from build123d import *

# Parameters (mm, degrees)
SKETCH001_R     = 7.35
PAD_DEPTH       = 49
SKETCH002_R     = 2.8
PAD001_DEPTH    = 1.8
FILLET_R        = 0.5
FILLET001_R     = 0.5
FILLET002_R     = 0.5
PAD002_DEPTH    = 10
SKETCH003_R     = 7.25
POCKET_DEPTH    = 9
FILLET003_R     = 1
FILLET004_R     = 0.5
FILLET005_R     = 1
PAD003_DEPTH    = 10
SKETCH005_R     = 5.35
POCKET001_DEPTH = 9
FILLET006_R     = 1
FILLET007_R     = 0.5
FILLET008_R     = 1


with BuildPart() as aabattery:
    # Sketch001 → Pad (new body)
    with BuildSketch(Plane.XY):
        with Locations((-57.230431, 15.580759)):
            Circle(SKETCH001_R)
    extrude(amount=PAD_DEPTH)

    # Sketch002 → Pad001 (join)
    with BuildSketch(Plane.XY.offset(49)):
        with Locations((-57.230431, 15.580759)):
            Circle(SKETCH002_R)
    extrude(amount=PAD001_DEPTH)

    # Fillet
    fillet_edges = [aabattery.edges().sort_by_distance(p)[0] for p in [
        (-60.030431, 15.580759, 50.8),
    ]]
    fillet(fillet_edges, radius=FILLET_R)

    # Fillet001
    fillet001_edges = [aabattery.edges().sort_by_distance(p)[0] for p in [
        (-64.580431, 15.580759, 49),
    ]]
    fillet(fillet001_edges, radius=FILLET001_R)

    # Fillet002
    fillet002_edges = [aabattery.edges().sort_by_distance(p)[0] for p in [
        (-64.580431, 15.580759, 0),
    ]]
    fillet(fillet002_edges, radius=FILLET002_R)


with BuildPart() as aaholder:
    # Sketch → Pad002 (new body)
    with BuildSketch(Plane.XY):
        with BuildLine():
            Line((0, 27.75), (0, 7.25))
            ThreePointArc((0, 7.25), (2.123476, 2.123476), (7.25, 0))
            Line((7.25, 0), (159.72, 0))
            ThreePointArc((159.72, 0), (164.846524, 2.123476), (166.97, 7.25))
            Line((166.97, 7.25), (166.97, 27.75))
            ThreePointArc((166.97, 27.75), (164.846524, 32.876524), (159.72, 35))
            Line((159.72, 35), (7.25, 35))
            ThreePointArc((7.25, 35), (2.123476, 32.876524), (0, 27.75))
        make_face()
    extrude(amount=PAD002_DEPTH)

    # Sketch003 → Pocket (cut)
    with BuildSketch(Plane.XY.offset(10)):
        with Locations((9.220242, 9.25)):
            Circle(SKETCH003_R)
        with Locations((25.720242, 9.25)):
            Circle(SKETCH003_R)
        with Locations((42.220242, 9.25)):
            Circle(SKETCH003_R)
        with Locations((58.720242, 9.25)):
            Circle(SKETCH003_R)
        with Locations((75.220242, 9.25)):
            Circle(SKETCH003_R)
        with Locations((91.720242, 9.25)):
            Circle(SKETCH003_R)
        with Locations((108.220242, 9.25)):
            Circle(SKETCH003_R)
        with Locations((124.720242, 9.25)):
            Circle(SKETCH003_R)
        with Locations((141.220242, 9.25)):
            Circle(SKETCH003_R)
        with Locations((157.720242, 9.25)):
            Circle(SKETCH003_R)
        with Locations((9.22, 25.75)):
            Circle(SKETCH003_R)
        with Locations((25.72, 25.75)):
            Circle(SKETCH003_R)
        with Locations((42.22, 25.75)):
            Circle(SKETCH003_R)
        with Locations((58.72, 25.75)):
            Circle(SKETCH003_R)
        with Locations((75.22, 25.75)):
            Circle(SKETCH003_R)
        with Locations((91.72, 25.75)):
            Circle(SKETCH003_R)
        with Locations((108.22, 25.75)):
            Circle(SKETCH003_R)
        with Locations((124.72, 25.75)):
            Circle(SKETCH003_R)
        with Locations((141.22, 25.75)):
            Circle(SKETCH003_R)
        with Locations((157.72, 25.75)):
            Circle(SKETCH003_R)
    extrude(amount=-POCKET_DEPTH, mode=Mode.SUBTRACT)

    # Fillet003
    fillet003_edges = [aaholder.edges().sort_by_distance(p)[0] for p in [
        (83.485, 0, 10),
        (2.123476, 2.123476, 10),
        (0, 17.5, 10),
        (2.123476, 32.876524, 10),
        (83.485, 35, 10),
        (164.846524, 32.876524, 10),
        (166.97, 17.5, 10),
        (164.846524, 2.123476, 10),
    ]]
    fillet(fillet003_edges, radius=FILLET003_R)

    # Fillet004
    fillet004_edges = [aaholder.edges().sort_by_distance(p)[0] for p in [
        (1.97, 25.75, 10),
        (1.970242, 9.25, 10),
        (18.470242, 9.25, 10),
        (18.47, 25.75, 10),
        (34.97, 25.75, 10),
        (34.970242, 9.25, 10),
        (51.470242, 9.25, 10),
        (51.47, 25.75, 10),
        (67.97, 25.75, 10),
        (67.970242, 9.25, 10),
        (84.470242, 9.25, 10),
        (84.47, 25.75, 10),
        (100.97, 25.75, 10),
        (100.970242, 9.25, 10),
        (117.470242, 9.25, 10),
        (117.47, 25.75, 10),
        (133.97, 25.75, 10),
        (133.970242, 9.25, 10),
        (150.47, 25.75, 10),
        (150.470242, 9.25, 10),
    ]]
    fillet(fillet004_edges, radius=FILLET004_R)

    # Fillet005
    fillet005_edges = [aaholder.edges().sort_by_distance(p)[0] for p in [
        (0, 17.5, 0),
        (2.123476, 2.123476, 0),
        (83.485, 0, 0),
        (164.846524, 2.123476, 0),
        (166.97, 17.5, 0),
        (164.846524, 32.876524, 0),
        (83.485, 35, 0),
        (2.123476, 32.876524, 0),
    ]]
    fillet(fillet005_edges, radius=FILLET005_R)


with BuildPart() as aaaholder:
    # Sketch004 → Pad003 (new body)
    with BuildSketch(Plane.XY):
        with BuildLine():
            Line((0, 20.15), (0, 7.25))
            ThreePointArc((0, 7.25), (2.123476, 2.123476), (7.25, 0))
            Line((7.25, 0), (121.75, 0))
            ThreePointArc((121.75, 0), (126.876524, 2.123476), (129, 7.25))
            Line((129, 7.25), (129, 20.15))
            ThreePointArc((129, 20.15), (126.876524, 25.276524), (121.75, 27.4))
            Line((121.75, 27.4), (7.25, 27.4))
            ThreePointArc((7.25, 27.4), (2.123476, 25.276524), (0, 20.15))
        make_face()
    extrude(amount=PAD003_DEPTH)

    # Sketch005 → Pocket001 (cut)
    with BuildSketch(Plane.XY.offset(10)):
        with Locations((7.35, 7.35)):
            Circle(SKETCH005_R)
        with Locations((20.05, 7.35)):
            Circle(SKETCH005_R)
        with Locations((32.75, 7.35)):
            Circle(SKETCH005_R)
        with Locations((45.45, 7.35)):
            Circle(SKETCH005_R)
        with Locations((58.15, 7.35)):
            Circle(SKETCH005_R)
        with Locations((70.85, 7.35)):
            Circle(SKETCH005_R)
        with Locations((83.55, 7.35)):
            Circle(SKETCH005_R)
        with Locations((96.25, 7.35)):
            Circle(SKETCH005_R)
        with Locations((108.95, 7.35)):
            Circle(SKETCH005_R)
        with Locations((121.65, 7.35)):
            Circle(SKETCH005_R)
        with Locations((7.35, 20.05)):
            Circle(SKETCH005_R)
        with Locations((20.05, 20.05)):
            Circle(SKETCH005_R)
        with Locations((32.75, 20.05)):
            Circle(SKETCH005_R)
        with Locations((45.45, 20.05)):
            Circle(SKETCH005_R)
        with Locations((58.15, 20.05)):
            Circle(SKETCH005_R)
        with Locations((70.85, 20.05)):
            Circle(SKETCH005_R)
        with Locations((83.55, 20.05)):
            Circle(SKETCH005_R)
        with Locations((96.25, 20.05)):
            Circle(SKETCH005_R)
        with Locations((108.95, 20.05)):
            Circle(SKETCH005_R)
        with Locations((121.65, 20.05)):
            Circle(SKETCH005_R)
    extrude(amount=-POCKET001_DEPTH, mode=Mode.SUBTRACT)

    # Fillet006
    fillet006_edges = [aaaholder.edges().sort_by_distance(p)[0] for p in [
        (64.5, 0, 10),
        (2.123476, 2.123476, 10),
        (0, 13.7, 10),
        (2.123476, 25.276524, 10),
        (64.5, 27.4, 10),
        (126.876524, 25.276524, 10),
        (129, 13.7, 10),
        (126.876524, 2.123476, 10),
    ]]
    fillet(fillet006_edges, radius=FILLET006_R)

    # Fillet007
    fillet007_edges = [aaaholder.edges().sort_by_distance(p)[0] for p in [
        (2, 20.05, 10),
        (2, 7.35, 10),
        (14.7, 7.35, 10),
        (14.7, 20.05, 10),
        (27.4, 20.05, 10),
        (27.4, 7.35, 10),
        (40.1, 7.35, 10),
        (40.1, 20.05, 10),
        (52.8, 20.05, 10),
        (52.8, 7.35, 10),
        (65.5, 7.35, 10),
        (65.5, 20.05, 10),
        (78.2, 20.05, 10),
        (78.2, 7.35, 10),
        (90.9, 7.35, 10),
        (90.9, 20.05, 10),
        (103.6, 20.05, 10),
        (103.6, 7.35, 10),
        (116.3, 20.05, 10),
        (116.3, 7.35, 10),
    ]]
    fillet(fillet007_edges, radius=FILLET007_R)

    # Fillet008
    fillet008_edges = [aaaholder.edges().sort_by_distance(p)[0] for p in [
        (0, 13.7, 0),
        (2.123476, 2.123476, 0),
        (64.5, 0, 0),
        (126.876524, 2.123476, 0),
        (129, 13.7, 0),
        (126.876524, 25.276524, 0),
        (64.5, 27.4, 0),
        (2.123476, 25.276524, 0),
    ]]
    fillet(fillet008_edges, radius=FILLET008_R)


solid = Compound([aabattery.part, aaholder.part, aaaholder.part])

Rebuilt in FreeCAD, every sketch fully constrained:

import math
import FreeCAD as App
import Part
import Sketcher


def edges_at(feature, points):
    """Names of the edges that pass closest to the given points."""
    edges = feature.Shape.Edges
    near = lambda p: min(range(len(edges)), key=lambda i: edges[i].distToShape(Part.Vertex(*p))[0])
    return sorted({f"Edge{near(p) + 1}" for p in points})

doc = App.newDocument("Part")
body = doc.addObject("PartDesign::Body", "Body")

# Sketch on XY plane
sketch1 = body.newObject("Sketcher::SketchObject", "Sketch")
sketch1.AttachmentSupport = (doc.getObject("XY_Plane"), [""])
sketch1.MapMode = "FlatFace"
sketch1.addGeometry(Part.Circle(App.Vector(-57.230431, 15.580759, 0), App.Vector(0, 0, 1), 7.35), False)
sketch1.addConstraint([
    Sketcher.Constraint("Diameter", 0, 14.7),
    Sketcher.Constraint("DistanceX", 0, 3, -1, 1, 57.230431),
    Sketcher.Constraint("DistanceY", -1, 1, 0, 3, 15.580759),
])
pad1 = body.newObject("PartDesign::Pad", "Pad")
pad1.Profile = sketch1
pad1.Length = 49

# Sketch on XY plane
sketch2 = body.newObject("Sketcher::SketchObject", "Sketch001")
sketch2.AttachmentSupport = (doc.getObject("XY_Plane"), [""])
sketch2.MapMode = "FlatFace"
sketch2.AttachmentOffset = App.Placement(App.Vector(0, 0, 49), App.Rotation())
sketch2.addGeometry(Part.Circle(App.Vector(-57.230431, 15.580759, 0), App.Vector(0, 0, 1), 2.8), False)
sketch2.addConstraint([
    Sketcher.Constraint("Diameter", 0, 5.6),
    Sketcher.Constraint("DistanceX", 0, 3, -1, 1, 57.230431),
    Sketcher.Constraint("DistanceY", -1, 1, 0, 3, 15.580759),
])
pad2 = body.newObject("PartDesign::Pad", "Pad001")
pad2.Profile = sketch2
pad2.Length = 1.8
doc.recompute()

fillet = body.newObject("PartDesign::Fillet", "Fillet")
fillet.Base = (pad2, edges_at(pad2, [(-60.03, 15.581, 50.8)]))
fillet.Radius = 0.5
doc.recompute()

fillet2 = body.newObject("PartDesign::Fillet", "Fillet001")
fillet2.Base = (fillet, edges_at(fillet, [(-64.58, 15.581, 49)]))
fillet2.Radius = 0.5
doc.recompute()

fillet3 = body.newObject("PartDesign::Fillet", "Fillet002")
fillet3.Base = (fillet2, edges_at(fillet2, [(-64.58, 15.581, 0)]))
fillet3.Radius = 0.5
body2 = doc.addObject("PartDesign::Body", "Body001")

# Sketch on XY plane
sketch3 = body2.newObject("Sketcher::SketchObject", "Sketch002")
sketch3.AttachmentSupport = (doc.getObject("XY_Plane001"), [""])
sketch3.MapMode = "FlatFace"
sketch3.addGeometry([
    Part.LineSegment(App.Vector(0, 27.75, 0), App.Vector(0, 7.25, 0)),  # 0
    Part.ArcOfCircle(Part.Circle(App.Vector(7.250001, 7.250001, 0), App.Vector(0, 0, 1), 7.250001), math.radians(-179.999996), math.radians(-90.000004)),  # 1
    Part.LineSegment(App.Vector(7.25, 0, 0), App.Vector(159.72, 0, 0)),  # 2
    Part.ArcOfCircle(Part.Circle(App.Vector(159.719999, 7.250001, 0), App.Vector(0, 0, 1), 7.250001), math.radians(-89.999996), math.radians(-0.000004)),  # 3
    Part.LineSegment(App.Vector(166.97, 7.25, 0), App.Vector(166.97, 27.75, 0)),  # 4
    Part.ArcOfCircle(Part.Circle(App.Vector(159.719999, 27.749999, 0), App.Vector(0, 0, 1), 7.250001), math.radians(0.000004), math.radians(89.999996)),  # 5
    Part.LineSegment(App.Vector(159.72, 35, 0), App.Vector(7.25, 35, 0)),  # 6
    Part.ArcOfCircle(Part.Circle(App.Vector(7.250001, 27.749999, 0), App.Vector(0, 0, 1), 7.250001), math.radians(90.000004), math.radians(179.999996)),  # 7
], False)
sketch3.addConstraint([
    Sketcher.Constraint("Tangent", 0, 2, 1, 1),
    Sketcher.Constraint("Tangent", 1, 2, 2, 1),
    Sketcher.Constraint("Tangent", 2, 2, 3, 1),
    Sketcher.Constraint("Tangent", 3, 2, 4, 1),
    Sketcher.Constraint("Tangent", 4, 2, 5, 1),
    Sketcher.Constraint("Tangent", 5, 2, 6, 1),
    Sketcher.Constraint("Tangent", 6, 2, 7, 1),
    Sketcher.Constraint("Tangent", 7, 2, 0, 1),
    Sketcher.Constraint("Vertical", 0),
    Sketcher.Constraint("Horizontal", 2),
    Sketcher.Constraint("Vertical", 4),
    Sketcher.Constraint("Horizontal", 6),
    Sketcher.Constraint("Equal", 1, 3),
    Sketcher.Constraint("Equal", 3, 5),
    Sketcher.Constraint("Equal", 5, 7),
    Sketcher.Constraint("PointOnObject", 0, 2, -2),
    Sketcher.Constraint("PointOnObject", 1, 2, -1),
    Sketcher.Constraint("Radius", 1, 7.250001),
    Sketcher.Constraint("DistanceY", 0, 2, 0, 1, 20.5),
    Sketcher.Constraint("DistanceX", 2, 1, 2, 2, 152.47),
])
pad3 = body2.newObject("PartDesign::Pad", "Pad002")
pad3.Profile = sketch3
pad3.Length = 10

# Sketch on XY plane
sketch4 = body2.newObject("Sketcher::SketchObject", "Sketch003")
sketch4.AttachmentSupport = (doc.getObject("XY_Plane001"), [""])
sketch4.MapMode = "FlatFace"
sketch4.AttachmentOffset = App.Placement(App.Vector(0, 0, 10), App.Rotation())
sketch4.addGeometry([
    Part.Circle(App.Vector(9.220242, 9.25, 0), App.Vector(0, 0, 1), 7.25),  # 0
    Part.Circle(App.Vector(25.720242, 9.25, 0), App.Vector(0, 0, 1), 7.25),  # 1
    Part.Circle(App.Vector(42.220242, 9.25, 0), App.Vector(0, 0, 1), 7.25),  # 2
    Part.Circle(App.Vector(58.720242, 9.25, 0), App.Vector(0, 0, 1), 7.25),  # 3
    Part.Circle(App.Vector(75.220242, 9.25, 0), App.Vector(0, 0, 1), 7.25),  # 4
    Part.Circle(App.Vector(91.720242, 9.25, 0), App.Vector(0, 0, 1), 7.25),  # 5
    Part.Circle(App.Vector(108.220242, 9.25, 0), App.Vector(0, 0, 1), 7.25),  # 6
    Part.Circle(App.Vector(124.720242, 9.25, 0), App.Vector(0, 0, 1), 7.25),  # 7
    Part.Circle(App.Vector(141.220242, 9.25, 0), App.Vector(0, 0, 1), 7.25),  # 8
    Part.Circle(App.Vector(157.720242, 9.25, 0), App.Vector(0, 0, 1), 7.25),  # 9
    Part.Circle(App.Vector(9.22, 25.75, 0), App.Vector(0, 0, 1), 7.25),  # 10
    Part.Circle(App.Vector(25.72, 25.75, 0), App.Vector(0, 0, 1), 7.25),  # 11
    Part.Circle(App.Vector(42.22, 25.75, 0), App.Vector(0, 0, 1), 7.25),  # 12
    Part.Circle(App.Vector(58.72, 25.75, 0), App.Vector(0, 0, 1), 7.25),  # 13
    Part.Circle(App.Vector(75.22, 25.75, 0), App.Vector(0, 0, 1), 7.25),  # 14
    Part.Circle(App.Vector(91.72, 25.75, 0), App.Vector(0, 0, 1), 7.25),  # 15
    Part.Circle(App.Vector(108.22, 25.75, 0), App.Vector(0, 0, 1), 7.25),  # 16
    Part.Circle(App.Vector(124.72, 25.75, 0), App.Vector(0, 0, 1), 7.25),  # 17
    Part.Circle(App.Vector(141.22, 25.75, 0), App.Vector(0, 0, 1), 7.25),  # 18
    Part.Circle(App.Vector(157.72, 25.75, 0), App.Vector(0, 0, 1), 7.25),  # 19
], False)
sketch4.addConstraint([
    Sketcher.Constraint("Equal", 0, 1),
    Sketcher.Constraint("Equal", 1, 2),
    Sketcher.Constraint("Equal", 2, 3),
    Sketcher.Constraint("Equal", 3, 4),
    Sketcher.Constraint("Equal", 4, 5),
    Sketcher.Constraint("Equal", 5, 6),
    Sketcher.Constraint("Equal", 6, 7),
    Sketcher.Constraint("Equal", 7, 8),
    Sketcher.Constraint("Equal", 8, 9),
    Sketcher.Constraint("Equal", 9, 10),
    Sketcher.Constraint("Equal", 10, 11),
    Sketcher.Constraint("Equal", 11, 12),
    Sketcher.Constraint("Equal", 12, 13),
    Sketcher.Constraint("Equal", 13, 14),
    Sketcher.Constraint("Equal", 14, 15),
    Sketcher.Constraint("Equal", 15, 16),
    Sketcher.Constraint("Equal", 16, 17),
    Sketcher.Constraint("Equal", 17, 18),
    Sketcher.Constraint("Equal", 18, 19),
    Sketcher.Constraint("Horizontal", 0, 3, 1, 3),
    Sketcher.Constraint("Horizontal", 1, 3, 2, 3),
    Sketcher.Constraint("Horizontal", 2, 3, 3, 3),
    Sketcher.Constraint("Horizontal", 3, 3, 4, 3),
    Sketcher.Constraint("Horizontal", 4, 3, 5, 3),
    Sketcher.Constraint("Horizontal", 5, 3, 6, 3),
    Sketcher.Constraint("Horizontal", 6, 3, 7, 3),
    Sketcher.Constraint("Horizontal", 7, 3, 8, 3),
    Sketcher.Constraint("Horizontal", 8, 3, 9, 3),
    Sketcher.Constraint("Horizontal", 10, 3, 11, 3),
    Sketcher.Constraint("Horizontal", 11, 3, 12, 3),
    Sketcher.Constraint("Horizontal", 12, 3, 13, 3),
    Sketcher.Constraint("Horizontal", 13, 3, 14, 3),
    Sketcher.Constraint("Horizontal", 14, 3, 15, 3),
    Sketcher.Constraint("Horizontal", 15, 3, 16, 3),
    Sketcher.Constraint("Horizontal", 16, 3, 17, 3),
    Sketcher.Constraint("Horizontal", 17, 3, 18, 3),
    Sketcher.Constraint("Horizontal", 18, 3, 19, 3),
    Sketcher.Constraint("Diameter", 0, 14.5),
    Sketcher.Constraint("DistanceX", 0, 3, 2, 3, 33.0),
    Sketcher.Constraint("DistanceX", 1, 3, 3, 3, 33.0),
    Sketcher.Constraint("DistanceX", 2, 3, 4, 3, 33.0),
    Sketcher.Constraint("DistanceX", 3, 3, 5, 3, 33.0),
    Sketcher.Constraint("DistanceX", 4, 3, 6, 3, 33.0),
    Sketcher.Constraint("DistanceX", 5, 3, 7, 3, 33.0),
    Sketcher.Constraint("DistanceX", 6, 3, 8, 3, 33.0),
    Sketcher.Constraint("DistanceX", 7, 3, 9, 3, 33.0),
    Sketcher.Constraint("DistanceX", 10, 3, 12, 3, 33.0),
    Sketcher.Constraint("DistanceX", 11, 3, 13, 3, 33.0),
    Sketcher.Constraint("DistanceX", 12, 3, 14, 3, 33.0),
    Sketcher.Constraint("DistanceX", 13, 3, 15, 3, 33.0),
    Sketcher.Constraint("DistanceX", 14, 3, 16, 3, 33.0),
    Sketcher.Constraint("DistanceX", 15, 3, 17, 3, 33.0),
    Sketcher.Constraint("DistanceX", 16, 3, 18, 3, 33.0),
    Sketcher.Constraint("DistanceX", 17, 3, 19, 3, 33.0),
    Sketcher.Constraint("DistanceX", 0, 3, 1, 3, 16.5),
    Sketcher.Constraint("DistanceY", 0, 3, 10, 3, 16.5),
    Sketcher.Constraint("DistanceX", 10, 3, 11, 3, 16.5),
    Sketcher.Constraint("DistanceY", -1, 1, 0, 3, 9.25),
    Sketcher.Constraint("DistanceX", -1, 1, 10, 3, 9.22),
    Sketcher.Constraint("DistanceX", -1, 1, 1, 3, 25.720242),
])
pocket1 = body2.newObject("PartDesign::Pocket", "Pocket")
pocket1.Profile = sketch4
pocket1.Length = 9
doc.recompute()

fillet4 = body2.newObject("PartDesign::Fillet", "Fillet003")
fillet4.Base = (pocket1, edges_at(pocket1, [
    (83.485, 0, 10),
    (2.123, 2.123, 10),
    (0, 17.5, 10),
    (2.123, 32.877, 10),
    (83.485, 35, 10),
    (164.847, 32.877, 10),
    (166.97, 17.5, 10),
    (164.847, 2.123, 10),
]))
fillet4.Radius = 1
doc.recompute()

fillet5 = body2.newObject("PartDesign::Fillet", "Fillet004")
fillet5.Base = (fillet4, edges_at(fillet4, [
    (1.97, 25.75, 10),
    (1.97, 9.25, 10),
    (18.47, 9.25, 10),
    (18.47, 25.75, 10),
    (34.97, 25.75, 10),
    (34.97, 9.25, 10),
    (51.47, 9.25, 10),
    (51.47, 25.75, 10),
    (67.97, 25.75, 10),
    (67.97, 9.25, 10),
    (84.47, 9.25, 10),
    (84.47, 25.75, 10),
    (100.97, 25.75, 10),
    (100.97, 9.25, 10),
    (117.47, 9.25, 10),
    (117.47, 25.75, 10),
    (133.97, 25.75, 10),
    (133.97, 9.25, 10),
    (150.47, 25.75, 10),
    (150.47, 9.25, 10),
]))
fillet5.Radius = 0.5
doc.recompute()

fillet6 = body2.newObject("PartDesign::Fillet", "Fillet005")
fillet6.Base = (fillet5, edges_at(fillet5, [
    (0, 17.5, 0),
    (2.123, 2.123, 0),
    (83.485, 0, 0),
    (164.847, 2.123, 0),
    (166.97, 17.5, 0),
    (164.847, 32.877, 0),
    (83.485, 35, 0),
    (2.123, 32.877, 0),
]))
fillet6.Radius = 1
body3 = doc.addObject("PartDesign::Body", "Body002")

# Sketch on XY plane
sketch5 = body3.newObject("Sketcher::SketchObject", "Sketch004")
sketch5.AttachmentSupport = (doc.getObject("XY_Plane002"), [""])
sketch5.MapMode = "FlatFace"
sketch5.addGeometry([
    Part.LineSegment(App.Vector(0, 20.15, 0), App.Vector(0, 7.25, 0)),  # 0
    Part.ArcOfCircle(Part.Circle(App.Vector(7.250001, 7.250001, 0), App.Vector(0, 0, 1), 7.250001), math.radians(-179.999996), math.radians(-90.000004)),  # 1
    Part.LineSegment(App.Vector(7.25, 0, 0), App.Vector(121.75, 0, 0)),  # 2
    Part.ArcOfCircle(Part.Circle(App.Vector(121.749999, 7.250001, 0), App.Vector(0, 0, 1), 7.250001), math.radians(-89.999996), math.radians(-0.000004)),  # 3
    Part.LineSegment(App.Vector(129, 7.25, 0), App.Vector(129, 20.15, 0)),  # 4
    Part.ArcOfCircle(Part.Circle(App.Vector(121.749999, 20.149999, 0), App.Vector(0, 0, 1), 7.250001), math.radians(0.000004), math.radians(89.999996)),  # 5
    Part.LineSegment(App.Vector(121.75, 27.4, 0), App.Vector(7.25, 27.4, 0)),  # 6
    Part.ArcOfCircle(Part.Circle(App.Vector(7.250001, 20.149999, 0), App.Vector(0, 0, 1), 7.250001), math.radians(90.000004), math.radians(179.999996)),  # 7
], False)
sketch5.addConstraint([
    Sketcher.Constraint("Tangent", 0, 2, 1, 1),
    Sketcher.Constraint("Tangent", 1, 2, 2, 1),
    Sketcher.Constraint("Tangent", 2, 2, 3, 1),
    Sketcher.Constraint("Tangent", 3, 2, 4, 1),
    Sketcher.Constraint("Tangent", 4, 2, 5, 1),
    Sketcher.Constraint("Tangent", 5, 2, 6, 1),
    Sketcher.Constraint("Tangent", 6, 2, 7, 1),
    Sketcher.Constraint("Tangent", 7, 2, 0, 1),
    Sketcher.Constraint("Vertical", 0),
    Sketcher.Constraint("Horizontal", 2),
    Sketcher.Constraint("Vertical", 4),
    Sketcher.Constraint("Horizontal", 6),
    Sketcher.Constraint("Equal", 1, 3),
    Sketcher.Constraint("Equal", 3, 5),
    Sketcher.Constraint("Equal", 5, 7),
    Sketcher.Constraint("PointOnObject", 0, 2, -2),
    Sketcher.Constraint("PointOnObject", 1, 2, -1),
    Sketcher.Constraint("Radius", 1, 7.250001),
    Sketcher.Constraint("DistanceX", 2, 1, 2, 2, 114.5),
    Sketcher.Constraint("DistanceY", 0, 2, 0, 1, 12.9),
])
pad4 = body3.newObject("PartDesign::Pad", "Pad003")
pad4.Profile = sketch5
pad4.Length = 10

# Sketch on XY plane
sketch6 = body3.newObject("Sketcher::SketchObject", "Sketch005")
sketch6.AttachmentSupport = (doc.getObject("XY_Plane002"), [""])
sketch6.MapMode = "FlatFace"
sketch6.AttachmentOffset = App.Placement(App.Vector(0, 0, 10), App.Rotation())
sketch6.addGeometry([
    Part.Circle(App.Vector(7.35, 7.35, 0), App.Vector(0, 0, 1), 5.35),  # 0
    Part.Circle(App.Vector(20.05, 7.35, 0), App.Vector(0, 0, 1), 5.35),  # 1
    Part.Circle(App.Vector(32.75, 7.35, 0), App.Vector(0, 0, 1), 5.35),  # 2
    Part.Circle(App.Vector(45.45, 7.35, 0), App.Vector(0, 0, 1), 5.35),  # 3
    Part.Circle(App.Vector(58.15, 7.35, 0), App.Vector(0, 0, 1), 5.35),  # 4
    Part.Circle(App.Vector(70.85, 7.35, 0), App.Vector(0, 0, 1), 5.35),  # 5
    Part.Circle(App.Vector(83.55, 7.35, 0), App.Vector(0, 0, 1), 5.35),  # 6
    Part.Circle(App.Vector(96.25, 7.35, 0), App.Vector(0, 0, 1), 5.35),  # 7
    Part.Circle(App.Vector(108.95, 7.35, 0), App.Vector(0, 0, 1), 5.35),  # 8
    Part.Circle(App.Vector(121.65, 7.35, 0), App.Vector(0, 0, 1), 5.35),  # 9
    Part.Circle(App.Vector(7.35, 20.05, 0), App.Vector(0, 0, 1), 5.35),  # 10
    Part.Circle(App.Vector(20.05, 20.05, 0), App.Vector(0, 0, 1), 5.35),  # 11
    Part.Circle(App.Vector(32.75, 20.05, 0), App.Vector(0, 0, 1), 5.35),  # 12
    Part.Circle(App.Vector(45.45, 20.05, 0), App.Vector(0, 0, 1), 5.35),  # 13
    Part.Circle(App.Vector(58.15, 20.05, 0), App.Vector(0, 0, 1), 5.35),  # 14
    Part.Circle(App.Vector(70.85, 20.05, 0), App.Vector(0, 0, 1), 5.35),  # 15
    Part.Circle(App.Vector(83.55, 20.05, 0), App.Vector(0, 0, 1), 5.35),  # 16
    Part.Circle(App.Vector(96.25, 20.05, 0), App.Vector(0, 0, 1), 5.35),  # 17
    Part.Circle(App.Vector(108.95, 20.05, 0), App.Vector(0, 0, 1), 5.35),  # 18
    Part.Circle(App.Vector(121.65, 20.05, 0), App.Vector(0, 0, 1), 5.35),  # 19
], False)
sketch6.addConstraint([
    Sketcher.Constraint("Equal", 0, 1),
    Sketcher.Constraint("Equal", 1, 2),
    Sketcher.Constraint("Equal", 2, 3),
    Sketcher.Constraint("Equal", 3, 4),
    Sketcher.Constraint("Equal", 4, 5),
    Sketcher.Constraint("Equal", 5, 6),
    Sketcher.Constraint("Equal", 6, 7),
    Sketcher.Constraint("Equal", 7, 8),
    Sketcher.Constraint("Equal", 8, 9),
    Sketcher.Constraint("Equal", 9, 10),
    Sketcher.Constraint("Equal", 10, 11),
    Sketcher.Constraint("Equal", 11, 12),
    Sketcher.Constraint("Equal", 12, 13),
    Sketcher.Constraint("Equal", 13, 14),
    Sketcher.Constraint("Equal", 14, 15),
    Sketcher.Constraint("Equal", 15, 16),
    Sketcher.Constraint("Equal", 16, 17),
    Sketcher.Constraint("Equal", 17, 18),
    Sketcher.Constraint("Equal", 18, 19),
    Sketcher.Constraint("Horizontal", 0, 3, 1, 3),
    Sketcher.Constraint("Horizontal", 1, 3, 2, 3),
    Sketcher.Constraint("Horizontal", 2, 3, 3, 3),
    Sketcher.Constraint("Horizontal", 3, 3, 4, 3),
    Sketcher.Constraint("Horizontal", 4, 3, 5, 3),
    Sketcher.Constraint("Horizontal", 5, 3, 6, 3),
    Sketcher.Constraint("Horizontal", 6, 3, 7, 3),
    Sketcher.Constraint("Horizontal", 7, 3, 8, 3),
    Sketcher.Constraint("Horizontal", 8, 3, 9, 3),
    Sketcher.Constraint("Horizontal", 10, 3, 11, 3),
    Sketcher.Constraint("Horizontal", 11, 3, 12, 3),
    Sketcher.Constraint("Horizontal", 12, 3, 13, 3),
    Sketcher.Constraint("Horizontal", 13, 3, 14, 3),
    Sketcher.Constraint("Horizontal", 14, 3, 15, 3),
    Sketcher.Constraint("Horizontal", 15, 3, 16, 3),
    Sketcher.Constraint("Horizontal", 16, 3, 17, 3),
    Sketcher.Constraint("Horizontal", 17, 3, 18, 3),
    Sketcher.Constraint("Horizontal", 18, 3, 19, 3),
    Sketcher.Constraint("Vertical", 0, 3, 10, 3),
    Sketcher.Constraint("Vertical", 1, 3, 11, 3),
    Sketcher.Constraint("Vertical", 2, 3, 12, 3),
    Sketcher.Constraint("Vertical", 3, 3, 13, 3),
    Sketcher.Constraint("Vertical", 4, 3, 14, 3),
    Sketcher.Constraint("Vertical", 5, 3, 15, 3),
    Sketcher.Constraint("Vertical", 6, 3, 16, 3),
    Sketcher.Constraint("Vertical", 7, 3, 17, 3),
    Sketcher.Constraint("Vertical", 8, 3, 18, 3),
    Sketcher.Constraint("Vertical", 9, 3, 19, 3),
    Sketcher.Constraint("Diameter", 0, 10.7),
    Sketcher.Constraint("DistanceX", 0, 3, 1, 3, 12.7),
    Sketcher.Constraint("DistanceX", 1, 3, 2, 3, 12.7),
    Sketcher.Constraint("DistanceX", 2, 3, 3, 3, 12.7),
    Sketcher.Constraint("DistanceX", 3, 3, 4, 3, 12.7),
    Sketcher.Constraint("DistanceX", 4, 3, 5, 3, 12.7),
    Sketcher.Constraint("DistanceX", 5, 3, 6, 3, 12.7),
    Sketcher.Constraint("DistanceX", 6, 3, 7, 3, 12.7),
    Sketcher.Constraint("DistanceX", 7, 3, 8, 3, 12.7),
    Sketcher.Constraint("DistanceX", 8, 3, 9, 3, 12.7),
    Sketcher.Constraint("DistanceY", 0, 3, 10, 3, 12.7),
    Sketcher.Constraint("DistanceX", -1, 1, 0, 3, 7.35),
    Sketcher.Constraint("DistanceY", -1, 1, 0, 3, 7.35),
])
pocket2 = body3.newObject("PartDesign::Pocket", "Pocket001")
pocket2.Profile = sketch6
pocket2.Length = 9
doc.recompute()

fillet7 = body3.newObject("PartDesign::Fillet", "Fillet006")
fillet7.Base = (pocket2, edges_at(pocket2, [
    (64.5, 0, 10),
    (2.123, 2.123, 10),
    (0, 13.7, 10),
    (2.123, 25.277, 10),
    (64.5, 27.4, 10),
    (126.877, 25.277, 10),
    (129, 13.7, 10),
    (126.877, 2.123, 10),
]))
fillet7.Radius = 1
doc.recompute()

fillet8 = body3.newObject("PartDesign::Fillet", "Fillet007")
fillet8.Base = (fillet7, edges_at(fillet7, [
    (2, 20.05, 10),
    (2, 7.35, 10),
    (14.7, 7.35, 10),
    (14.7, 20.05, 10),
    (27.4, 20.05, 10),
    (27.4, 7.35, 10),
    (40.1, 7.35, 10),
    (40.1, 20.05, 10),
    (52.8, 20.05, 10),
    (52.8, 7.35, 10),
    (65.5, 7.35, 10),
    (65.5, 20.05, 10),
    (78.2, 20.05, 10),
    (78.2, 7.35, 10),
    (90.9, 7.35, 10),
    (90.9, 20.05, 10),
    (103.6, 20.05, 10),
    (103.6, 7.35, 10),
    (116.3, 20.05, 10),
    (116.3, 7.35, 10),
]))
fillet8.Radius = 0.5
doc.recompute()

fillet9 = body3.newObject("PartDesign::Fillet", "Fillet008")
fillet9.Base = (fillet8, edges_at(fillet8, [
    (0, 13.7, 0),
    (2.123, 2.123, 0),
    (64.5, 0, 0),
    (126.877, 2.123, 0),
    (129, 13.7, 0),
    (126.877, 25.277, 0),
    (64.5, 27.4, 0),
    (2.123, 25.277, 0),
]))
fillet9.Radius = 1

doc.recompute()
